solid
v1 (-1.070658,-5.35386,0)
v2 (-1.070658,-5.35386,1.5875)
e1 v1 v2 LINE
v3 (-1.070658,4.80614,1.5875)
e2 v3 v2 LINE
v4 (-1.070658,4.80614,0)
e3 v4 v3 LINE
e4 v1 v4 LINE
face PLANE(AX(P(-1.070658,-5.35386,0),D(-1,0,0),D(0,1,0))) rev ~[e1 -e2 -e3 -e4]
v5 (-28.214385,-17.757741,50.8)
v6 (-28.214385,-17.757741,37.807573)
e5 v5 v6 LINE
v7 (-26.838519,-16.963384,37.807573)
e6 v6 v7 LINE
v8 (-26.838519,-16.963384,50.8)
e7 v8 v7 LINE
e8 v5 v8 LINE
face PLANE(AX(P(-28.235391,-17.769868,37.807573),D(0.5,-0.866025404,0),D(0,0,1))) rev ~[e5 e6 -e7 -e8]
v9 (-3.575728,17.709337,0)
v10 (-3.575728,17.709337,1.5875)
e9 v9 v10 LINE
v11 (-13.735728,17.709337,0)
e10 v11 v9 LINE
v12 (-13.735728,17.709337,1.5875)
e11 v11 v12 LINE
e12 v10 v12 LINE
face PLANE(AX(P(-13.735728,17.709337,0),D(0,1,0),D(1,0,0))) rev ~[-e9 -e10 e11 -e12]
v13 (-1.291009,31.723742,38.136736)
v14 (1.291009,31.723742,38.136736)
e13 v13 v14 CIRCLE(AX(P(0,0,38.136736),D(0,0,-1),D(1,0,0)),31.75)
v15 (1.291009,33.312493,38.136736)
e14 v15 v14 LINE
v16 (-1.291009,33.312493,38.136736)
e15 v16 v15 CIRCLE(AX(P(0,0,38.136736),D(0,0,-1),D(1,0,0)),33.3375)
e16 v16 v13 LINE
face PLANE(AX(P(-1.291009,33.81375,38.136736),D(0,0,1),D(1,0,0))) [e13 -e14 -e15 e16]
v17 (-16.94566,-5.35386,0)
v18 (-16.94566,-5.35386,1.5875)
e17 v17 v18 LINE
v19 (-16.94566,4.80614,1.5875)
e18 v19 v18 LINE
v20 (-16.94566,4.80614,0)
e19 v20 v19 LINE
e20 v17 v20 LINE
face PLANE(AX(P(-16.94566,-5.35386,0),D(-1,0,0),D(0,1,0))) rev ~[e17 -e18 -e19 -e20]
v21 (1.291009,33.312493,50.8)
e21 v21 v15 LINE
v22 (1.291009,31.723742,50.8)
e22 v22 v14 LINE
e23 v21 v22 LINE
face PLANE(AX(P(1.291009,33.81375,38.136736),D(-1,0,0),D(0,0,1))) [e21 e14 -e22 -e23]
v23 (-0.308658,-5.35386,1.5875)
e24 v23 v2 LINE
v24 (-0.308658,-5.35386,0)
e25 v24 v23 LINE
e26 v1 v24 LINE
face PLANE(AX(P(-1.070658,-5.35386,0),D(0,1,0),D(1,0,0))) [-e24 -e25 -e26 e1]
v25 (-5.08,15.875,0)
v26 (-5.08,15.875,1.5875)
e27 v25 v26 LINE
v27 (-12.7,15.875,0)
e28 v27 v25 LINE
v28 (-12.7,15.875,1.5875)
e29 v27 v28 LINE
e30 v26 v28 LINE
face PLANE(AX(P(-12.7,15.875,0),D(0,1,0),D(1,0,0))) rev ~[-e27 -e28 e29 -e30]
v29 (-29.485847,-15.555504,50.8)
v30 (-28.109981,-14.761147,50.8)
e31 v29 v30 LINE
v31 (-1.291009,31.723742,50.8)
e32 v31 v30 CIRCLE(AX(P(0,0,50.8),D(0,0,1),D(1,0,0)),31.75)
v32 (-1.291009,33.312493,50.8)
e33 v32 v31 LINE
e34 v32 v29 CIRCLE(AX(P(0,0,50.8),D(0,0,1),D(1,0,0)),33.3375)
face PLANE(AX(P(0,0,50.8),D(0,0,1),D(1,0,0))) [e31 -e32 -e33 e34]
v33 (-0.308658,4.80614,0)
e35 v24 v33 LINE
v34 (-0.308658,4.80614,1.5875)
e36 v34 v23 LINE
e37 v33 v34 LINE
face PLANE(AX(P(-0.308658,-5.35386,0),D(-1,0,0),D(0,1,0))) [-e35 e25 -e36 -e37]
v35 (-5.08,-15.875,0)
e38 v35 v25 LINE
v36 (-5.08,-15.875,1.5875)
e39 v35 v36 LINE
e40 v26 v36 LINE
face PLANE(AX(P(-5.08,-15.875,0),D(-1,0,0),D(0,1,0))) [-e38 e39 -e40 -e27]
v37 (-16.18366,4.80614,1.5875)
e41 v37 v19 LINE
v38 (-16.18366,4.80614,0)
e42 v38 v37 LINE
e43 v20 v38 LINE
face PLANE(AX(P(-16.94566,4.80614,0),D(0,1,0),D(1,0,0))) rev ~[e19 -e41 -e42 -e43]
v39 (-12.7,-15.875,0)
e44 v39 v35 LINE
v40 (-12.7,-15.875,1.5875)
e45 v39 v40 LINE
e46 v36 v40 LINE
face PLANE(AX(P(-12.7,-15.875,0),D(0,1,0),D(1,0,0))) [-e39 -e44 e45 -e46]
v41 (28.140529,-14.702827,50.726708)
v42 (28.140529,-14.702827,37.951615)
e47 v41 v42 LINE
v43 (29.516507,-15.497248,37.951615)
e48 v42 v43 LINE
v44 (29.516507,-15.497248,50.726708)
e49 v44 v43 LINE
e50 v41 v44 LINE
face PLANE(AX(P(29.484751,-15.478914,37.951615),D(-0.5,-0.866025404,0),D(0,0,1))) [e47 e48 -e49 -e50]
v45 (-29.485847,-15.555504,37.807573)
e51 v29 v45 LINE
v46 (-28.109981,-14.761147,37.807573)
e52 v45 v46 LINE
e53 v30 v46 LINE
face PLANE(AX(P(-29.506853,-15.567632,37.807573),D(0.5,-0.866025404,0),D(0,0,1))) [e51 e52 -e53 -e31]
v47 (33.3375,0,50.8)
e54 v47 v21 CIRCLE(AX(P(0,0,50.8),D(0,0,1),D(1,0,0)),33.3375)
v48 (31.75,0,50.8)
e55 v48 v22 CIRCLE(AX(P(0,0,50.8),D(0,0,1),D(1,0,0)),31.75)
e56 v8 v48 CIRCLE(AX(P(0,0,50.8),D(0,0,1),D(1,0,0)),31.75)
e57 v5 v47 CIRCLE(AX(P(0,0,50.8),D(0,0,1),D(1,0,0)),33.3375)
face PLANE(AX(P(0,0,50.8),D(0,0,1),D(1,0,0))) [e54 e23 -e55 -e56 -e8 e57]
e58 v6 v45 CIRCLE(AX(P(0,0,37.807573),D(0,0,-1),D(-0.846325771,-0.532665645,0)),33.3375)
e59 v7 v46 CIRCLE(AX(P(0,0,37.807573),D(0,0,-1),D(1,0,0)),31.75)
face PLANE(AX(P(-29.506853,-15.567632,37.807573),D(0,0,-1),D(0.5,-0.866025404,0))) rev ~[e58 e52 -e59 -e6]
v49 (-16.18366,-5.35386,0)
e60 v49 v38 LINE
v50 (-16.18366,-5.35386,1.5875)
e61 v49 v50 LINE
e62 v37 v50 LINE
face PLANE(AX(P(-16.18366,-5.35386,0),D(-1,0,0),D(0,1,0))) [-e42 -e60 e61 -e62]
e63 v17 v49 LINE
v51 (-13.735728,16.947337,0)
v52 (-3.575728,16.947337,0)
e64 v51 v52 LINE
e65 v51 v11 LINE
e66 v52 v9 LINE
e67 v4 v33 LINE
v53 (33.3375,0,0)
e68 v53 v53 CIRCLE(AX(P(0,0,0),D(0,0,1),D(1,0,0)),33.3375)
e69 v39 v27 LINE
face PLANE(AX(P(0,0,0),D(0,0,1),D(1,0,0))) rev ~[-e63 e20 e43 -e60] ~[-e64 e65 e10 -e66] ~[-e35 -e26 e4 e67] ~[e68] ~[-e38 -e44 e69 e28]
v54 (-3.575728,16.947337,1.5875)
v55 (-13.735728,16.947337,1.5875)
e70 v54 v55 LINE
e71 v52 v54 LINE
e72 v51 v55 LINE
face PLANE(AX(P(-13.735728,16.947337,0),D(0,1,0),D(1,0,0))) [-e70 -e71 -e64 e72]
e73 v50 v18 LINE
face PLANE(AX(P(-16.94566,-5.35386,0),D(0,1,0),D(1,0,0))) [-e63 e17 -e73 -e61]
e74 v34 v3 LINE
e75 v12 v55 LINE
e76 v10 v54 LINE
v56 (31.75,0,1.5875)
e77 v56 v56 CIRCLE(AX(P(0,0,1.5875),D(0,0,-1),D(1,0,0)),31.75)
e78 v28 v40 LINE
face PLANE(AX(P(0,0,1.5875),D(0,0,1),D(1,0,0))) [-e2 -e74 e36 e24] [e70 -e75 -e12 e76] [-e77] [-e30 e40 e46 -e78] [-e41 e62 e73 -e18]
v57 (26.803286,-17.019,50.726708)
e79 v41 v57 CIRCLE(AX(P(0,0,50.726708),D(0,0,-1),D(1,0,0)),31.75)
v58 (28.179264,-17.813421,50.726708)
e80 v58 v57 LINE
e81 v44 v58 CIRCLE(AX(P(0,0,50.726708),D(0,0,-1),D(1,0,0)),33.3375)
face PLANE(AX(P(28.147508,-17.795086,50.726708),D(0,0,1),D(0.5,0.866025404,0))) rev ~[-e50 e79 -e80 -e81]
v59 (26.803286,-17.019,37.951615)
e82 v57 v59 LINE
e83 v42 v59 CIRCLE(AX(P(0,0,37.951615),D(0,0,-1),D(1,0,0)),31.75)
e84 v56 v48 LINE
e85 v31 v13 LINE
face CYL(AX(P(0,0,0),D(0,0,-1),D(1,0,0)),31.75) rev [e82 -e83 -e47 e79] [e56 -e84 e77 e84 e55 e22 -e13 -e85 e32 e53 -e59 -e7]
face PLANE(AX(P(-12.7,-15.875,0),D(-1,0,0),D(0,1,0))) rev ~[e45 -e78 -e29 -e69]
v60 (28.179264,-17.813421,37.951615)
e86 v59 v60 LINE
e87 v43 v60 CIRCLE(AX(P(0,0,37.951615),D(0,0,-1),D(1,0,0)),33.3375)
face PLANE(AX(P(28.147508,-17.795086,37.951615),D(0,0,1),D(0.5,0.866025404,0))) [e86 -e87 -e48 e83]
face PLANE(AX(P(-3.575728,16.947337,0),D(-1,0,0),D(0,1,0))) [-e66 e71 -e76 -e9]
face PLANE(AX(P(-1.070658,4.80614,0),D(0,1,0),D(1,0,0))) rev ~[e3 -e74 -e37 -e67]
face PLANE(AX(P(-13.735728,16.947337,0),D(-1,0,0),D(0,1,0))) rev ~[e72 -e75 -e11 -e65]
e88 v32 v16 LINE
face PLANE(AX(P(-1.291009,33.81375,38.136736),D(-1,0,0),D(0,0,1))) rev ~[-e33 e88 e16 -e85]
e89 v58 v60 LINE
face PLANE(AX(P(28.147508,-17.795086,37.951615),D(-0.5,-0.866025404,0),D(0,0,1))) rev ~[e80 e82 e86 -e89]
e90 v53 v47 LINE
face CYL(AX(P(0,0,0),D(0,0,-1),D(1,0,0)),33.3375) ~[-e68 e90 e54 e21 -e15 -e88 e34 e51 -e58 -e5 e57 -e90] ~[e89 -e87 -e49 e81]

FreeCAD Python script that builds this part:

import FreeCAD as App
import Part
import Sketcher
from FreeCAD import Vector
Q = App.Units.Quantity


def faces_at(feature, points):
    """Names of the faces that lie closest to the given points."""
    faces = feature.Shape.Faces
    near = lambda p: min(range(len(faces)), key=lambda i: faces[i].distToShape(Part.Vertex(*p))[0])
    return sorted({f"Face{near(p) + 1}" for p in points})

doc = App.newDocument("Part")
body = doc.addObject("PartDesign::Body", "Body")

# Sketch on XY plane
sketch1 = body.newObject("Sketcher::SketchObject", "Sketch")
sketch1.AttachmentSupport = (doc.getObject("XY_Plane"), [""])
sketch1.MapMode = "FlatFace"
sketch1.addGeometry(Part.Circle(Vector(0, 0, 0), Vector(0, 0, 1), 33), False)
sketch1.addConstraint(Sketcher.Constraint("Coincident", 0, 3, -1, 1))
sketch1.addConstraint(Sketcher.Constraint("Diameter", 0, Q("2.625 in")))
pad1 = body.newObject("PartDesign::Pad", "Pad")
pad1.Profile = sketch1
pad1.Length = Q("2 in")
doc.recompute()

thickness = body.newObject("PartDesign::Thickness", "Thickness")
thickness.Base = (pad1, faces_at(pad1, [(0, 0, 50.8)]))
thickness.Value = Q("0.0625 in")
thickness.Reversed = True
thickness.Join = "Arc"

# Sketch on an angled plane
sketch2 = body.newObject("Sketcher::SketchObject", "Sketch001")
sketch2.Placement = App.Placement(Vector(-28.871122, -16.66875, 0), App.Rotation(Vector(0.5, -0.866025404, 0), Vector(0, 0, 1), Vector(-0.866025404, -0.5, 0), "ZXY"))
sketch2.addGeometry(Part.LineSegment(Vector(-1.3, 51, 0), Vector(-1.3, 37.8, 0)), False)
sketch2.addGeometry(Part.LineSegment(Vector(-1.3, 37.8, 0), Vector(1.3, 37.8, 0)), False)
sketch2.addGeometry(Part.LineSegment(Vector(1.3, 37.8, 0), Vector(1.3, 51, 0)), False)
sketch2.addGeometry(Part.LineSegment(Vector(1.3, 51, 0), Vector(-1.3, 51, 0)), False)
sketch2.addConstraint(Sketcher.Constraint("Coincident", 0, 2, 1, 1))
sketch2.addConstraint(Sketcher.Constraint("Coincident", 1, 2, 2, 1))
sketch2.addConstraint(Sketcher.Constraint("Coincident", 2, 2, 3, 1))
sketch2.addConstraint(Sketcher.Constraint("Coincident", 3, 2, 0, 1))
sketch2.addConstraint(Sketcher.Constraint("Vertical", 0))
sketch2.addConstraint(Sketcher.Constraint("Horizontal", 1))
sketch2.addConstraint(Sketcher.Constraint("Vertical", 2))
sketch2.addConstraint(Sketcher.Constraint("Horizontal", 3))
sketch2.addConstraint(Sketcher.Constraint("DistanceX", 1, 1, 1, 2, Q("2.542924 mm")))
sketch2.addConstraint(Sketcher.Constraint("DistanceY", 0, 2, 0, 1, Q("13.188787 mm")))
sketch2.addConstraint(Sketcher.Constraint("DistanceY", -1, 1, 2, 2, Q("50.996359 mm")))
sketch2.addConstraint(Sketcher.Constraint("DistanceX", 0, 2, -1, 1, Q("1.271462 mm")))
pocket1 = body.newObject("PartDesign::Pocket", "Pocket")
pocket1.Profile = sketch2
pocket1.Length = Q("0.5 in")

# Sketch on an angled plane
sketch3 = body.newObject("Sketcher::SketchObject", "Sketch002")
sketch3.Placement = App.Placement(Vector(28.816129, -16.637, 0), App.Rotation(Vector(0.5, 0.866025404, 0), Vector(0, 0, 1), Vector(0.866025404, -0.5, 0), "ZXY"))
sketch3.addGeometry(Part.LineSegment(Vector(-1.3, 50.7, 0), Vector(-1.3, 38, 0)), False)
sketch3.addGeometry(Part.LineSegment(Vector(-1.3, 38, 0), Vector(1.3, 38, 0)), False)
sketch3.addGeometry(Part.LineSegment(Vector(1.3, 38, 0), Vector(1.3, 50.7, 0)), False)
sketch3.addGeometry(Part.LineSegment(Vector(1.3, 50.7, 0), Vector(-1.3, 50.7, 0)), False)
sketch3.addConstraint(Sketcher.Constraint("Coincident", 0, 2, 1, 1))
sketch3.addConstraint(Sketcher.Constraint("Coincident", 1, 2, 2, 1))
sketch3.addConstraint(Sketcher.Constraint("Coincident", 2, 2, 3, 1))
sketch3.addConstraint(Sketcher.Constraint("Coincident", 3, 2, 0, 1))
sketch3.addConstraint(Sketcher.Constraint("Vertical", 0))
sketch3.addConstraint(Sketcher.Constraint("Horizontal", 1))
sketch3.addConstraint(Sketcher.Constraint("Vertical", 2))
sketch3.addConstraint(Sketcher.Constraint("Horizontal", 3))
sketch3.addConstraint(Sketcher.Constraint("DistanceX", 1, 1, 1, 2, Q("2.674486 mm")))
sketch3.addConstraint(Sketcher.Constraint("DistanceY", 0, 2, 0, 1, Q("12.775093 mm")))
sketch3.addConstraint(Sketcher.Constraint("DistanceY", -1, 1, 2, 2, Q("50.726708 mm")))
sketch3.addConstraint(Sketcher.Constraint("DistanceX", 0, 2, -1, 1, Q("1.337243 mm")))
pocket2 = body.newObject("PartDesign::Pocket", "Pocket001")
pocket2.Profile = sketch3
pocket2.Type = "TwoLengths"
pocket2.Length = Q("0.11 in")
pocket2.Length2 = Q("0.095 in")

# Sketch on XZ plane
sketch4 = body.newObject("Sketcher::SketchObject", "Sketch003")
sketch4.AttachmentSupport = (doc.getObject("XZ_Plane"), [""])
sketch4.MapMode = "FlatFace"
sketch4.AttachmentOffset = App.Placement(Vector(0, 0, -33.81375), App.Rotation())
sketch4.addGeometry(Part.LineSegment(Vector(-1.3, 50.9, 0), Vector(-1.3, 38.1, 0)), False)
sketch4.addGeometry(Part.LineSegment(Vector(-1.3, 38.1, 0), Vector(1.3, 38.1, 0)), False)
sketch4.addGeometry(Part.LineSegment(Vector(1.3, 38.1, 0), Vector(1.3, 50.9, 0)), False)
sketch4.addGeometry(Part.LineSegment(Vector(1.3, 50.9, 0), Vector(-1.3, 50.9, 0)), False)
sketch4.addConstraint(Sketcher.Constraint("Coincident", 0, 2, 1, 1))
sketch4.addConstraint(Sketcher.Constraint("Coincident", 1, 2, 2, 1))
sketch4.addConstraint(Sketcher.Constraint("Coincident", 2, 2, 3, 1))
sketch4.addConstraint(Sketcher.Constraint("Coincident", 3, 2, 0, 1))
sketch4.addConstraint(Sketcher.Constraint("Vertical", 0))
sketch4.addConstraint(Sketcher.Constraint("Horizontal", 1))
sketch4.addConstraint(Sketcher.Constraint("Vertical", 2))
sketch4.addConstraint(Sketcher.Constraint("Horizontal", 3))
sketch4.addConstraint(Sketcher.Constraint("DistanceY", -1, 1, 2, 2, Q("50.898299 mm")))
sketch4.addConstraint(Sketcher.Constraint("DistanceX", 1, 1, 1, 2, Q("2.582017 mm")))
sketch4.addConstraint(Sketcher.Constraint("DistanceY", 0, 2, 0, 1, Q("12.761563 mm")))
sketch4.addConstraint(Sketcher.Constraint("DistanceX", 0, 2, -1, 1, Q("1.291009 mm")))
pocket3 = body.newObject("PartDesign::Pocket", "Pocket002")
pocket3.Profile = sketch4
pocket3.Type = "TwoLengths"
pocket3.Length = Q("0.199 in")
pocket3.Length2 = Q("0.186 in")

# Sketch on XY plane
sketch5 = body.newObject("Sketcher::SketchObject", "Sketch004")
sketch5.AttachmentSupport = (doc.getObject("XY_Plane"), [""])
sketch5.MapMode = "FlatFace"
sketch5.addGeometry(Part.LineSegment(Vector(-12.7, 15.9, 0), Vector(-12.7, -15.9, 0)), False)
sketch5.addGeometry(Part.LineSegment(Vector(-12.7, -15.9, 0), Vector(-5.1, -15.9, 0)), False)
sketch5.addGeometry(Part.LineSegment(Vector(-5.1, -15.9, 0), Vector(-5.1, 15.9, 0)), False)
sketch5.addGeometry(Part.LineSegment(Vector(-5.1, 15.9, 0), Vector(-12.7, 15.9, 0)), False)
sketch5.addGeometry(Part.LineSegment(Vector(-1.1, 4.8, 0), Vector(-1.1, -5.4, 0)), False)
sketch5.addGeometry(Part.LineSegment(Vector(-1.1, -5.4, 0), Vector(-0.3, -5.4, 0)), False)
sketch5.addGeometry(Part.LineSegment(Vector(-0.3, -5.4, 0), Vector(-0.3, 4.8, 0)), False)
sketch5.addGeometry(Part.LineSegment(Vector(-0.3, 4.8, 0), Vector(-1.1, 4.8, 0)), False)
sketch5.addGeometry(Part.LineSegment(Vector(-16.9, 4.8, 0), Vector(-16.9, -5.4, 0)), False)
sketch5.addGeometry(Part.LineSegment(Vector(-16.9, -5.4, 0), Vector(-16.2, -5.4, 0)), False)
sketch5.addGeometry(Part.LineSegment(Vector(-16.2, -5.4, 0), Vector(-16.2, 4.8, 0)), False)
sketch5.addGeometry(Part.LineSegment(Vector(-16.2, 4.8, 0), Vector(-16.9, 4.8, 0)), False)
sketch5.addGeometry(Part.LineSegment(Vector(-13.7, 17.7, 0), Vector(-13.7, 16.9, 0)), False)
sketch5.addGeometry(Part.LineSegment(Vector(-13.7, 16.9, 0), Vector(-3.6, 16.9, 0)), False)
sketch5.addGeometry(Part.LineSegment(Vector(-3.6, 16.9, 0), Vector(-3.6, 17.7, 0)), False)
sketch5.addGeometry(Part.LineSegment(Vector(-3.6, 17.7, 0), Vector(-13.7, 17.7, 0)), False)
sketch5.addConstraint(Sketcher.Constraint("Coincident", 0, 2, 1, 1))
sketch5.addConstraint(Sketcher.Constraint("Coincident", 1, 2, 2, 1))
sketch5.addConstraint(Sketcher.Constraint("Coincident", 2, 2, 3, 1))
sketch5.addConstraint(Sketcher.Constraint("Coincident", 3, 2, 0, 1))
sketch5.addConstraint(Sketcher.Constraint("Coincident", 4, 2, 5, 1))
sketch5.addConstraint(Sketcher.Constraint("Coincident", 5, 2, 6, 1))
sketch5.addConstraint(Sketcher.Constraint("Coincident", 6, 2, 7, 1))
sketch5.addConstraint(Sketcher.Constraint("Coincident", 7, 2, 4, 1))
sketch5.addConstraint(Sketcher.Constraint("Coincident", 8, 2, 9, 1))
sketch5.addConstraint(Sketcher.Constraint("Coincident", 9, 2, 10, 1))
sketch5.addConstraint(Sketcher.Constraint("Coincident", 10, 2, 11, 1))
sketch5.addConstraint(Sketcher.Constraint("Coincident", 11, 2, 8, 1))
sketch5.addConstraint(Sketcher.Constraint("Coincident", 12, 2, 13, 1))
sketch5.addConstraint(Sketcher.Constraint("Coincident", 13, 2, 14, 1))
sketch5.addConstraint(Sketcher.Constraint("Coincident", 14, 2, 15, 1))
sketch5.addConstraint(Sketcher.Constraint("Coincident", 15, 2, 12, 1))
sketch5.addConstraint(Sketcher.Constraint("Vertical", 0))
sketch5.addConstraint(Sketcher.Constraint("Horizontal", 1))
sketch5.addConstraint(Sketcher.Constraint("Vertical", 2))
sketch5.addConstraint(Sketcher.Constraint("Horizontal", 3))
sketch5.addConstraint(Sketcher.Constraint("Vertical", 4))
sketch5.addConstraint(Sketcher.Constraint("Horizontal", 5))
sketch5.addConstraint(Sketcher.Constraint("Vertical", 6))
sketch5.addConstraint(Sketcher.Constraint("Horizontal", 7))
sketch5.addConstraint(Sketcher.Constraint("Vertical", 8))
sketch5.addConstraint(Sketcher.Constraint("Horizontal", 9))
sketch5.addConstraint(Sketcher.Constraint("Vertical", 10))
sketch5.addConstraint(Sketcher.Constraint("Horizontal", 11))
sketch5.addConstraint(Sketcher.Constraint("Vertical", 12))
sketch5.addConstraint(Sketcher.Constraint("Horizontal", 13))
sketch5.addConstraint(Sketcher.Constraint("Vertical", 14))
sketch5.addConstraint(Sketcher.Constraint("Horizontal", 15))
sketch5.addConstraint(Sketcher.Constraint("Horizontal", 5, 2, 8, 2))
sketch5.addConstraint(Sketcher.Constraint("Horizontal", 7, 2, 10, 2))
sketch5.addConstraint(Sketcher.Constraint("Equal", 7, 9))
sketch5.addConstraint(Sketcher.Constraint("Equal", 15, 4))
sketch5.addConstraint(Sketcher.Constraint("Equal", 11, 12))
sketch5.addConstraint(Sketcher.Constraint("DistanceX", 1, 1, 1, 2, Q("0.3 in")))
sketch5.addConstraint(Sketcher.Constraint("DistanceX", 13, 1, 13, 2, Q("0.4 in")))
sketch5.addConstraint(Sketcher.Constraint("DistanceX", 5, 1, 5, 2, Q("0.03 in")))
sketch5.addConstraint(Sketcher.Constraint("DistanceY", 0, 2, 0, 1, Q("1.25 in")))
sketch5.addConstraint(Sketcher.Constraint("DistanceX", 0, 2, -1, 1, Q("0.5 in")))
sketch5.addConstraint(Sketcher.Constraint("DistanceY", 0, 2, -1, 1, Q("0.625 in")))
sketch5.addConstraint(Sketcher.Constraint("DistanceX", 8, 2, 4, 2, Q("0.6250001 in")))
sketch5.addConstraint(Sketcher.Constraint("DistanceY", 10, 2, 12, 2, Q("0.4779999 in")))
sketch5.addConstraint(Sketcher.Constraint("DistanceX", 4, 2, -1, 1, Q("1.070658 mm")))
sketch5.addConstraint(Sketcher.Constraint("DistanceY", 4, 2, -1, 1, Q("5.35386 mm")))
sketch5.addConstraint(Sketcher.Constraint("DistanceX", 12, 2, -1, 1, Q("13.735728 mm")))
pocket4 = body.newObject("PartDesign::Pocket", "Pocket003")
pocket4.Profile = sketch5
pocket4.Length = Q("0.39 in")
pocket4.Reversed = True

doc.recompute()
